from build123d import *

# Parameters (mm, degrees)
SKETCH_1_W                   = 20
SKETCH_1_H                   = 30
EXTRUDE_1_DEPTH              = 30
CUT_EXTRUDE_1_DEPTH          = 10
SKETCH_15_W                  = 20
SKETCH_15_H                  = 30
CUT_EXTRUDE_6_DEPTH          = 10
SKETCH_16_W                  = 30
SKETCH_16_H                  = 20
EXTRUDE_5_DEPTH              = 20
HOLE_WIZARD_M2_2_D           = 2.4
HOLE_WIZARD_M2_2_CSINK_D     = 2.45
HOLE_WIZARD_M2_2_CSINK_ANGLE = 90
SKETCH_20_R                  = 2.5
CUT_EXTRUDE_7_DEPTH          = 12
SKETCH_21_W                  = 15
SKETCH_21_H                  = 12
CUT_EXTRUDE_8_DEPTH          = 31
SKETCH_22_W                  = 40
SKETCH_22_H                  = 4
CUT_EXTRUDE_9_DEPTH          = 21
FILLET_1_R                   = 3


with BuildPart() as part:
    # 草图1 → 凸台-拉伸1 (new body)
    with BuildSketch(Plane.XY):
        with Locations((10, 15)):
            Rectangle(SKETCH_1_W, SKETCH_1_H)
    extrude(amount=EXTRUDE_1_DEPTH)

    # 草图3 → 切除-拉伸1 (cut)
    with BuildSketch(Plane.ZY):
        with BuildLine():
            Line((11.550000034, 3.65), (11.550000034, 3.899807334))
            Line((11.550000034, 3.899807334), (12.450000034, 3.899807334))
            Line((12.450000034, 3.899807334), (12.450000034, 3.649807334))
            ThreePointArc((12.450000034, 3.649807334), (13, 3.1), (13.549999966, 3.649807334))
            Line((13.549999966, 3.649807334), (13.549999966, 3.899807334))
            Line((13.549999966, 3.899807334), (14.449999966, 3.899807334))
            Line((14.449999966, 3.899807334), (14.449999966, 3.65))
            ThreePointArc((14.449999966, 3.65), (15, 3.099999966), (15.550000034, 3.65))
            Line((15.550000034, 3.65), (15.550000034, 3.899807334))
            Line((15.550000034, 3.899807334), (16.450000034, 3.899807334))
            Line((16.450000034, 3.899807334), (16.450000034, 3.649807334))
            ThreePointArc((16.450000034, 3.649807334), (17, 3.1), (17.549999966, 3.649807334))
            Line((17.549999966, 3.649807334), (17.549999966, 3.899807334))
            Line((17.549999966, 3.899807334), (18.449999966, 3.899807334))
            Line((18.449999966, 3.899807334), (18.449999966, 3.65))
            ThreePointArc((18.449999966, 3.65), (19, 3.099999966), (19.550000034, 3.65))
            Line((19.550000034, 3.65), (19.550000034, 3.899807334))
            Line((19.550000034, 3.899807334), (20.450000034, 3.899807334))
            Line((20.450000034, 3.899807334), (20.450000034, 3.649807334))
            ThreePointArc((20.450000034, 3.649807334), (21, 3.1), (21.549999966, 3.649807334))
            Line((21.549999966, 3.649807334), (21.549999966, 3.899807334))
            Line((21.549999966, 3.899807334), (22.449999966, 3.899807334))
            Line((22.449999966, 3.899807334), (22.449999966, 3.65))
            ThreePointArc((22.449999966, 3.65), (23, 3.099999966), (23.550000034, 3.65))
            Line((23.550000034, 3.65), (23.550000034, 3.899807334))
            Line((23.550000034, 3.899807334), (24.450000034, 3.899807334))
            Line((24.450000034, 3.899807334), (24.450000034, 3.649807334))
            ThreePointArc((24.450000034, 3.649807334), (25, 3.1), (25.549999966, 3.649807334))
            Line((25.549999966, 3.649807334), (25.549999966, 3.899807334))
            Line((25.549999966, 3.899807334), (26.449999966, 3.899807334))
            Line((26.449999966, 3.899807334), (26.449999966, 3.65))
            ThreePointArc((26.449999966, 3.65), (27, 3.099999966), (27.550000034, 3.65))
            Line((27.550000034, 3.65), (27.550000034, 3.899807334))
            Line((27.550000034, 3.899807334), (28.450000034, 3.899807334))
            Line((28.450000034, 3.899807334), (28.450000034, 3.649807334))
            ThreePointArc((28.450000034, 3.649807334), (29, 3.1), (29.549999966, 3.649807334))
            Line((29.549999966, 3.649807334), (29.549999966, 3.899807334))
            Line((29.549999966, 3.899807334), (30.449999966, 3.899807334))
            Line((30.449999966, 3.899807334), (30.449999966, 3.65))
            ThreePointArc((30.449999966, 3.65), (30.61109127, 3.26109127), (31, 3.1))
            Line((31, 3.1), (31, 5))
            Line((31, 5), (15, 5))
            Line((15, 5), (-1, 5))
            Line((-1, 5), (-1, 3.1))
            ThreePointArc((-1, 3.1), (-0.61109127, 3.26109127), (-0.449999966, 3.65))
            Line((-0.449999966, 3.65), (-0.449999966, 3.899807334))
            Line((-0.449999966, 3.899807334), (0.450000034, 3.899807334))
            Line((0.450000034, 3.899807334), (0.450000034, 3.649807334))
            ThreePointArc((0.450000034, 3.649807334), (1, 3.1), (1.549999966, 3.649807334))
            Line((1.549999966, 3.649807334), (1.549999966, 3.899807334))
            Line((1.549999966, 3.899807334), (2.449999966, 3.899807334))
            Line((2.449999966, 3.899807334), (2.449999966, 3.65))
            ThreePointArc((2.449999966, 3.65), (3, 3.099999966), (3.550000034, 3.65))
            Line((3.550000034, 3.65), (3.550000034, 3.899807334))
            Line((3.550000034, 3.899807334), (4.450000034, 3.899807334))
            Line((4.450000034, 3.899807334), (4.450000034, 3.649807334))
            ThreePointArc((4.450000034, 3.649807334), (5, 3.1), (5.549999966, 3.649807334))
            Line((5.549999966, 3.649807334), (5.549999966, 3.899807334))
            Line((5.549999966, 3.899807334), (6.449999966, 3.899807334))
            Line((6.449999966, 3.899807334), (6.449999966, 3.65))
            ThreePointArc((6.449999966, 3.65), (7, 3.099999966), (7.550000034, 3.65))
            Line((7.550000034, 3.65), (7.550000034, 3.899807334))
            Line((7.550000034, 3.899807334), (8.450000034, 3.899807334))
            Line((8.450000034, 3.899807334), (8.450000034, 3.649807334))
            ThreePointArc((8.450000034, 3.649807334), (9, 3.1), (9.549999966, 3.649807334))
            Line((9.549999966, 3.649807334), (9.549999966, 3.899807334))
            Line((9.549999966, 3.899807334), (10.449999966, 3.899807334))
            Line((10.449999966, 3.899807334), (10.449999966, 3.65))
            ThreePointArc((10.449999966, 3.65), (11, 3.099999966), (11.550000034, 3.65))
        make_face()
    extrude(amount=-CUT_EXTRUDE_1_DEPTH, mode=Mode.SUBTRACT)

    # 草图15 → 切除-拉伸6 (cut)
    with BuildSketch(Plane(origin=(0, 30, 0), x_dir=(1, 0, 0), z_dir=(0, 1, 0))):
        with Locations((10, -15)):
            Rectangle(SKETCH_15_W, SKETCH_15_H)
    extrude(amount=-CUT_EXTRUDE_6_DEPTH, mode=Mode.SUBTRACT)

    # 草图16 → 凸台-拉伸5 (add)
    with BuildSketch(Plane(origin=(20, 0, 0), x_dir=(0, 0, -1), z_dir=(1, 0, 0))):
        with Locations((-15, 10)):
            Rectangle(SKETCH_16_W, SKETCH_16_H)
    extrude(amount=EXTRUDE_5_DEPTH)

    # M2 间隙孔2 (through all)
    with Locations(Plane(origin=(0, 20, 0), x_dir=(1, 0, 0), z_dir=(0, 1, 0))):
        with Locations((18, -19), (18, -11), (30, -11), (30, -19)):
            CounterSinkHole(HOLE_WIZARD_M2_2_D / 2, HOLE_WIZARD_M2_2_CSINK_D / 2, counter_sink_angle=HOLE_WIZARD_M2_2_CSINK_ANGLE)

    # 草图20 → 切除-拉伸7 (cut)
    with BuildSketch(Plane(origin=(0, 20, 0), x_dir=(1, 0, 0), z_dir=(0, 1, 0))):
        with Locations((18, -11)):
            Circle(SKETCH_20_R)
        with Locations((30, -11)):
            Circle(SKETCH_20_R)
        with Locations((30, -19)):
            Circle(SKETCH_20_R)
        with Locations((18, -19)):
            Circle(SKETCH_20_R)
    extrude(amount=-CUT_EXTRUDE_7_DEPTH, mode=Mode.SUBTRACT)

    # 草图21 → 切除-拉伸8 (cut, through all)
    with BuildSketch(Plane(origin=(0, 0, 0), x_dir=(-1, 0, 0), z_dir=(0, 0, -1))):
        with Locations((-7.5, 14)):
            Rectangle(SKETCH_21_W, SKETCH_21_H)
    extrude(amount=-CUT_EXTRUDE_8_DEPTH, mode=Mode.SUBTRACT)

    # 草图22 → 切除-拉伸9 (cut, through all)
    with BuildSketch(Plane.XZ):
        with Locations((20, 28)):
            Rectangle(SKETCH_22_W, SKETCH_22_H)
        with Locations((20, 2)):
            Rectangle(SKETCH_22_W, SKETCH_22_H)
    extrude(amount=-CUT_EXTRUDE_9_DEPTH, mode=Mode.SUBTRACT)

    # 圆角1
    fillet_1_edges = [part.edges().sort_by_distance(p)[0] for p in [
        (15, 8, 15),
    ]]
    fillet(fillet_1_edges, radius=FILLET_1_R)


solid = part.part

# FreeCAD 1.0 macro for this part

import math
import FreeCAD as App
import Part
import Sketcher


def edges_at(feature, points):
    """Names of the edges that pass closest to the given points."""
    edges = feature.Shape.Edges
    near = lambda p: min(range(len(edges)), key=lambda i: edges[i].distToShape(Part.Vertex(*p))[0])
    return sorted({f"Edge{near(p) + 1}" for p in points})

doc = App.newDocument("Part")
body = doc.addObject("PartDesign::Body", "Body")

# Sketch on XY plane
sketch1 = body.newObject("Sketcher::SketchObject", "Sketch")
sketch1.AttachmentSupport = (doc.getObject("XY_Plane"), [""])
sketch1.MapMode = "FlatFace"
sketch1.addGeometry(Part.LineSegment(App.Vector(0, 30, 0), App.Vector(0, 0, 0)), False)
sketch1.addGeometry(Part.LineSegment(App.Vector(0, 0, 0), App.Vector(20, 0, 0)), False)
sketch1.addGeometry(Part.LineSegment(App.Vector(20, 0, 0), App.Vector(20, 30, 0)), False)
sketch1.addGeometry(Part.LineSegment(App.Vector(20, 30, 0), App.Vector(0, 30, 0)), False)
sketch1.addConstraint(Sketcher.Constraint("Coincident", 0, 2, 1, 1))
sketch1.addConstraint(Sketcher.Constraint("Coincident", 1, 2, 2, 1))
sketch1.addConstraint(Sketcher.Constraint("Coincident", 2, 2, 3, 1))
sketch1.addConstraint(Sketcher.Constraint("Coincident", 3, 2, 0, 1))
sketch1.addConstraint(Sketcher.Constraint("Vertical", 0))
sketch1.addConstraint(Sketcher.Constraint("Horizontal", 1))
sketch1.addConstraint(Sketcher.Constraint("Vertical", 2))
sketch1.addConstraint(Sketcher.Constraint("Horizontal", 3))
sketch1.addConstraint(Sketcher.Constraint("Coincident", 0, 2, -1, 1))
sketch1.addConstraint(Sketcher.Constraint("DistanceX", 1, 1, 1, 2, 20.0))
sketch1.addConstraint(Sketcher.Constraint("DistanceY", 0, 2, 0, 1, 30.0))
pad1 = body.newObject("PartDesign::Pad", "Pad")
pad1.Profile = sketch1
pad1.Length = 30

# Sketch on YZ plane
sketch2 = body.newObject("Sketcher::SketchObject", "Sketch001")
sketch2.AttachmentSupport = (doc.getObject("YZ_Plane"), [""])
sketch2.MapMode = "FlatFace"
sketch2.addGeometry(Part.LineSegment(App.Vector(3.65, 11.55, 0), App.Vector(3.9, 11.55, 0)), False)
sketch2.addGeometry(Part.LineSegment(App.Vector(3.9, 11.55, 0), App.Vector(3.9, 12.45, 0)), False)
sketch2.addGeometry(Part.LineSegment(App.Vector(3.9, 12.45, 0), App.Vector(3.65, 12.45, 0)), False)
sketch2.addGeometry(Part.ArcOfCircle(Part.Circle(App.Vector(3.65, 13, 0), App.Vector(0, 0, 1), 0.55), math.radians(90), math.radians(270)), False)
sketch2.addGeometry(Part.LineSegment(App.Vector(3.65, 13.55, 0), App.Vector(3.9, 13.55, 0)), False)
sketch2.addGeometry(Part.LineSegment(App.Vector(3.9, 13.55, 0), App.Vector(3.9, 14.45, 0)), False)
sketch2.addGeometry(Part.LineSegment(App.Vector(3.9, 14.45, 0), App.Vector(3.65, 14.45, 0)), False)
sketch2.addGeometry(Part.ArcOfCircle(Part.Circle(App.Vector(3.65, 15, 0), App.Vector(0, 0, 1), 0.55), math.radians(90), math.radians(270)), False)
sketch2.addGeometry(Part.LineSegment(App.Vector(3.65, 15.55, 0), App.Vector(3.9, 15.55, 0)), False)
sketch2.addGeometry(Part.LineSegment(App.Vector(3.9, 15.55, 0), App.Vector(3.9, 16.45, 0)), False)
sketch2.addGeometry(Part.LineSegment(App.Vector(3.9, 16.45, 0), App.Vector(3.65, 16.45, 0)), False)
sketch2.addGeometry(Part.ArcOfCircle(Part.Circle(App.Vector(3.65, 17, 0), App.Vector(0, 0, 1), 0.55), math.radians(90), math.radians(270)), False)
sketch2.addGeometry(Part.LineSegment(App.Vector(3.65, 17.55, 0), App.Vector(3.9, 17.55, 0)), False)
sketch2.addGeometry(Part.LineSegment(App.Vector(3.9, 17.55, 0), App.Vector(3.9, 18.45, 0)), False)
sketch2.addGeometry(Part.LineSegment(App.Vector(3.9, 18.45, 0), App.Vector(3.65, 18.45, 0)), False)
sketch2.addGeometry(Part.ArcOfCircle(Part.Circle(App.Vector(3.65, 19, 0), App.Vector(0, 0, 1), 0.55), math.radians(90), math.radians(270)), False)
sketch2.addGeometry(Part.LineSegment(App.Vector(3.65, 19.55, 0), App.Vector(3.9, 19.55, 0)), False)
sketch2.addGeometry(Part.LineSegment(App.Vector(3.9, 19.55, 0), App.Vector(3.9, 20.45, 0)), False)
sketch2.addGeometry(Part.LineSegment(App.Vector(3.9, 20.45, 0), App.Vector(3.65, 20.45, 0)), False)
sketch2.addGeometry(Part.ArcOfCircle(Part.Circle(App.Vector(3.65, 21, 0), App.Vector(0, 0, 1), 0.55), math.radians(90), math.radians(270)), False)
sketch2.addGeometry(Part.LineSegment(App.Vector(3.65, 21.55, 0), App.Vector(3.9, 21.55, 0)), False)
sketch2.addGeometry(Part.LineSegment(App.Vector(3.9, 21.55, 0), App.Vector(3.9, 22.45, 0)), False)
sketch2.addGeometry(Part.LineSegment(App.Vector(3.9, 22.45, 0), App.Vector(3.65, 22.45, 0)), False)
sketch2.addGeometry(Part.ArcOfCircle(Part.Circle(App.Vector(3.65, 23, 0), App.Vector(0, 0, 1), 0.55), math.radians(90), math.radians(270)), False)
sketch2.addGeometry(Part.LineSegment(App.Vector(3.65, 23.55, 0), App.Vector(3.9, 23.55, 0)), False)
sketch2.addGeometry(Part.LineSegment(App.Vector(3.9, 23.55, 0), App.Vector(3.9, 24.45, 0)), False)
sketch2.addGeometry(Part.LineSegment(App.Vector(3.9, 24.45, 0), App.Vector(3.65, 24.45, 0)), False)
sketch2.addGeometry(Part.ArcOfCircle(Part.Circle(App.Vector(3.65, 25, 0), App.Vector(0, 0, 1), 0.55), math.radians(90), math.radians(270)), False)
sketch2.addGeometry(Part.LineSegment(App.Vector(3.65, 25.55, 0), App.Vector(3.9, 25.55, 0)), False)
sketch2.addGeometry(Part.LineSegment(App.Vector(3.9, 25.55, 0), App.Vector(3.9, 26.45, 0)), False)
sketch2.addGeometry(Part.LineSegment(App.Vector(3.9, 26.45, 0), App.Vector(3.65, 26.45, 0)), False)
sketch2.addGeometry(Part.ArcOfCircle(Part.Circle(App.Vector(3.65, 27, 0), App.Vector(0, 0, 1), 0.55), math.radians(90), math.radians(270)), False)
sketch2.addGeometry(Part.LineSegment(App.Vector(3.65, 27.55, 0), App.Vector(3.9, 27.55, 0)), False)
sketch2.addGeometry(Part.LineSegment(App.Vector(3.9, 27.55, 0), App.Vector(3.9, 28.45, 0)), False)
sketch2.addGeometry(Part.LineSegment(App.Vector(3.9, 28.45, 0), App.Vector(3.65, 28.45, 0)), False)
sketch2.addGeometry(Part.ArcOfCircle(Part.Circle(App.Vector(3.65, 29, 0), App.Vector(0, 0, 1), 0.55), math.radians(90), math.radians(270)), False)
sketch2.addGeometry(Part.LineSegment(App.Vector(3.65, 29.55, 0), App.Vector(3.9, 29.55, 0)), False)
sketch2.addGeometry(Part.LineSegment(App.Vector(3.9, 29.55, 0), App.Vector(3.9, 30.45, 0)), False)
sketch2.addGeometry(Part.LineSegment(App.Vector(3.9, 30.45, 0), App.Vector(3.65, 30.45, 0)), False)
sketch2.addGeometry(Part.ArcOfCircle(Part.Circle(App.Vector(3.65, 31, 0), App.Vector(0, 0, 1), 0.55), math.radians(-180), math.radians(-90)), False)
sketch2.addGeometry(Part.LineSegment(App.Vector(3.1, 31, 0), App.Vector(5, 31, 0)), False)
sketch2.addGeometry(Part.LineSegment(App.Vector(5, 31, 0), App.Vector(5, -1, 0)), False)
sketch2.addGeometry(Part.LineSegment(App.Vector(5, -1, 0), App.Vector(3.1, -1, 0)), False)
sketch2.addGeometry(Part.ArcOfCircle(Part.Circle(App.Vector(3.65, -1, 0), App.Vector(0, 0, 1), 0.55), math.radians(90), math.radians(180)), False)
sketch2.addGeometry(Part.LineSegment(App.Vector(3.65, -0.45, 0), App.Vector(3.9, -0.45, 0)), False)
sketch2.addGeometry(Part.LineSegment(App.Vector(3.9, -0.45, 0), App.Vector(3.9, 0.45, 0)), False)
sketch2.addGeometry(Part.LineSegment(App.Vector(3.9, 0.45, 0), App.Vector(3.65, 0.45, 0)), False)
sketch2.addGeometry(Part.ArcOfCircle(Part.Circle(App.Vector(3.65, 1, 0), App.Vector(0, 0, 1), 0.55), math.radians(90), math.radians(270)), False)
sketch2.addGeometry(Part.LineSegment(App.Vector(3.65, 1.55, 0), App.Vector(3.9, 1.55, 0)), False)
sketch2.addGeometry(Part.LineSegment(App.Vector(3.9, 1.55, 0), App.Vector(3.9, 2.45, 0)), False)
sketch2.addGeometry(Part.LineSegment(App.Vector(3.9, 2.45, 0), App.Vector(3.65, 2.45, 0)), False)
sketch2.addGeometry(Part.ArcOfCircle(Part.Circle(App.Vector(3.65, 3, 0), App.Vector(0, 0, 1), 0.55), math.radians(90), math.radians(270)), False)
sketch2.addGeometry(Part.LineSegment(App.Vector(3.65, 3.55, 0), App.Vector(3.9, 3.55, 0)), False)
sketch2.addGeometry(Part.LineSegment(App.Vector(3.9, 3.55, 0), App.Vector(3.9, 4.45, 0)), False)
sketch2.addGeometry(Part.LineSegment(App.Vector(3.9, 4.45, 0), App.Vector(3.65, 4.45, 0)), False)
sketch2.addGeometry(Part.ArcOfCircle(Part.Circle(App.Vector(3.65, 5, 0), App.Vector(0, 0, 1), 0.55), math.radians(90), math.radians(270)), False)
sketch2.addGeometry(Part.LineSegment(App.Vector(3.65, 5.55, 0), App.Vector(3.9, 5.55, 0)), False)
sketch2.addGeometry(Part.LineSegment(App.Vector(3.9, 5.55, 0), App.Vector(3.9, 6.45, 0)), False)
sketch2.addGeometry(Part.LineSegment(App.Vector(3.9, 6.45, 0), App.Vector(3.65, 6.45, 0)), False)
sketch2.addGeometry(Part.ArcOfCircle(Part.Circle(App.Vector(3.65, 7, 0), App.Vector(0, 0, 1), 0.55), math.radians(90), math.radians(270)), False)
sketch2.addGeometry(Part.LineSegment(App.Vector(3.65, 7.55, 0), App.Vector(3.9, 7.55, 0)), False)
sketch2.addGeometry(Part.LineSegment(App.Vector(3.9, 7.55, 0), App.Vector(3.9, 8.45, 0)), False)
sketch2.addGeometry(Part.LineSegment(App.Vector(3.9, 8.45, 0), App.Vector(3.65, 8.45, 0)), False)
sketch2.addGeometry(Part.ArcOfCircle(Part.Circle(App.Vector(3.65, 9, 0), App.Vector(0, 0, 1), 0.55), math.radians(90), math.radians(270)), False)
sketch2.addGeometry(Part.LineSegment(App.Vector(3.65, 9.55, 0), App.Vector(3.9, 9.55, 0)), False)
sketch2.addGeometry(Part.LineSegment(App.Vector(3.9, 9.55, 0), App.Vector(3.9, 10.45, 0)), False)
sketch2.addGeometry(Part.LineSegment(App.Vector(3.9, 10.45, 0), App.Vector(3.65, 10.45, 0)), False)
sketch2.addGeometry(Part.ArcOfCircle(Part.Circle(App.Vector(3.65, 11, 0), App.Vector(0, 0, 1), 0.55), math.radians(90), math.radians(270)), False)
sketch2.addConstraint(Sketcher.Constraint("Coincident", 0, 2, 1, 1))
sketch2.addConstraint(Sketcher.Constraint("Coincident", 1, 2, 2, 1))
sketch2.addConstraint(Sketcher.Constraint("Coincident", 2, 2, 3, 2))
sketch2.addConstraint(Sketcher.Constraint("Coincident", 3, 1, 4, 1))
sketch2.addConstraint(Sketcher.Constraint("Coincident", 4, 2, 5, 1))
sketch2.addConstraint(Sketcher.Constraint("Coincident", 5, 2, 6, 1))
sketch2.addConstraint(Sketcher.Constraint("Tangent", 6, 2, 7, 2))
sketch2.addConstraint(Sketcher.Constraint("Tangent", 7, 1, 8, 1))
sketch2.addConstraint(Sketcher.Constraint("Coincident", 8, 2, 9, 1))
sketch2.addConstraint(Sketcher.Constraint("Coincident", 9, 2, 10, 1))
sketch2.addConstraint(Sketcher.Constraint("Coincident", 10, 2, 11, 2))
sketch2.addConstraint(Sketcher.Constraint("Coincident", 11, 1, 12, 1))
sketch2.addConstraint(Sketcher.Constraint("Coincident", 12, 2, 13, 1))
sketch2.addConstraint(Sketcher.Constraint("Coincident", 13, 2, 14, 1))
sketch2.addConstraint(Sketcher.Constraint("Tangent", 14, 2, 15, 2))
sketch2.addConstraint(Sketcher.Constraint("Tangent", 15, 1, 16, 1))
sketch2.addConstraint(Sketcher.Constraint("Coincident", 16, 2, 17, 1))
sketch2.addConstraint(Sketcher.Constraint("Coincident", 17, 2, 18, 1))
sketch2.addConstraint(Sketcher.Constraint("Coincident", 18, 2, 19, 2))
sketch2.addConstraint(Sketcher.Constraint("Coincident", 19, 1, 20, 1))
sketch2.addConstraint(Sketcher.Constraint("Coincident", 20, 2, 21, 1))
sketch2.addConstraint(Sketcher.Constraint("Coincident", 21, 2, 22, 1))
sketch2.addConstraint(Sketcher.Constraint("Tangent", 22, 2, 23, 2))
sketch2.addConstraint(Sketcher.Constraint("Tangent", 23, 1, 24, 1))
sketch2.addConstraint(Sketcher.Constraint("Coincident", 24, 2, 25, 1))
sketch2.addConstraint(Sketcher.Constraint("Coincident", 25, 2, 26, 1))
sketch2.addConstraint(Sketcher.Constraint("Coincident", 26, 2, 27, 2))
sketch2.addConstraint(Sketcher.Constraint("Coincident", 27, 1, 28, 1))
sketch2.addConstraint(Sketcher.Constraint("Coincident", 28, 2, 29, 1))
sketch2.addConstraint(Sketcher.Constraint("Coincident", 29, 2, 30, 1))
sketch2.addConstraint(Sketcher.Constraint("Tangent", 30, 2, 31, 2))
sketch2.addConstraint(Sketcher.Constraint("Tangent", 31, 1, 32, 1))
sketch2.addConstraint(Sketcher.Constraint("Coincident", 32, 2, 33, 1))
sketch2.addConstraint(Sketcher.Constraint("Coincident", 33, 2, 34, 1))
sketch2.addConstraint(Sketcher.Constraint("Coincident", 34, 2, 35, 2))
sketch2.addConstraint(Sketcher.Constraint("Coincident", 35, 1, 36, 1))
sketch2.addConstraint(Sketcher.Constraint("Coincident", 36, 2, 37, 1))
sketch2.addConstraint(Sketcher.Constraint("Coincident", 37, 2, 38, 1))
sketch2.addConstraint(Sketcher.Constraint("Tangent", 38, 2, 39, 2))
sketch2.addConstraint(Sketcher.Constraint("Coincident", 39, 1, 40, 1))
sketch2.addConstraint(Sketcher.Constraint("Coincident", 40, 2, 41, 1))
sketch2.addConstraint(Sketcher.Constraint("Coincident", 41, 2, 42, 1))
sketch2.addConstraint(Sketcher.Constraint("Coincident", 42, 2, 43, 2))
sketch2.addConstraint(Sketcher.Constraint("Tangent", 43, 1, 44, 1))
sketch2.addConstraint(Sketcher.Constraint("Coincident", 44, 2, 45, 1))
sketch2.addConstraint(Sketcher.Constraint("Coincident", 45, 2, 46, 1))
sketch2.addConstraint(Sketcher.Constraint("Coincident", 46, 2, 47, 2))
sketch2.addConstraint(Sketcher.Constraint("Coincident", 47, 1, 48, 1))
sketch2.addConstraint(Sketcher.Constraint("Coincident", 48, 2, 49, 1))
sketch2.addConstraint(Sketcher.Constraint("Coincident", 49, 2, 50, 1))
sketch2.addConstraint(Sketcher.Constraint("Tangent", 50, 2, 51, 2))
sketch2.addConstraint(Sketcher.Constraint("Tangent", 51, 1, 52, 1))
sketch2.addConstraint(Sketcher.Constraint("Coincident", 52, 2, 53, 1))
sketch2.addConstraint(Sketcher.Constraint("Coincident", 53, 2, 54, 1))
sketch2.addConstraint(Sketcher.Constraint("Coincident", 54, 2, 55, 2))
sketch2.addConstraint(Sketcher.Constraint("Coincident", 55, 1, 56, 1))
sketch2.addConstraint(Sketcher.Constraint("Coincident", 56, 2, 57, 1))
sketch2.addConstraint(Sketcher.Constraint("Coincident", 57, 2, 58, 1))
sketch2.addConstraint(Sketcher.Constraint("Tangent", 58, 2, 59, 2))
sketch2.addConstraint(Sketcher.Constraint("Tangent", 59, 1, 60, 1))
sketch2.addConstraint(Sketcher.Constraint("Coincident", 60, 2, 61, 1))
sketch2.addConstraint(Sketcher.Constraint("Coincident", 61, 2, 62, 1))
sketch2.addConstraint(Sketcher.Constraint("Coincident", 62, 2, 63, 2))
sketch2.addConstraint(Sketcher.Constraint("Coincident", 63, 1, 64, 1))
sketch2.addConstraint(Sketcher.Constraint("Coincident", 64, 2, 65, 1))
sketch2.addConstraint(Sketcher.Constraint("Coincident", 65, 2, 66, 1))
sketch2.addConstraint(Sketcher.Constraint("Tangent", 66, 2, 67, 2))
sketch2.addConstraint(Sketcher.Constraint("Tangent", 67, 1, 0, 1))
sketch2.addConstraint(Sketcher.Constraint("Horizontal", 0))
sketch2.addConstraint(Sketcher.Constraint("Vertical", 1))
sketch2.addConstraint(Sketcher.Constraint("Horizontal", 2))
sketch2.addConstraint(Sketcher.Constraint("Horizontal", 4))
sketch2.addConstraint(Sketcher.Constraint("Vertical", 5))
sketch2.addConstraint(Sketcher.Constraint("Horizontal", 6))
sketch2.addConstraint(Sketcher.Constraint("Horizontal", 8))
sketch2.addConstraint(Sketcher.Constraint("Vertical", 9))
sketch2.addConstraint(Sketcher.Constraint("Horizontal", 10))
sketch2.addConstraint(Sketcher.Constraint("Horizontal", 12))
sketch2.addConstraint(Sketcher.Constraint("Vertical", 13))
sketch2.addConstraint(Sketcher.Constraint("Horizontal", 14))
sketch2.addConstraint(Sketcher.Constraint("Horizontal", 16))
sketch2.addConstraint(Sketcher.Constraint("Vertical", 17))
sketch2.addConstraint(Sketcher.Constraint("Horizontal", 18))
sketch2.addConstraint(Sketcher.Constraint("Horizontal", 20))
sketch2.addConstraint(Sketcher.Constraint("Vertical", 21))
sketch2.addConstraint(Sketcher.Constraint("Horizontal", 22))
sketch2.addConstraint(Sketcher.Constraint("Horizontal", 24))
sketch2.addConstraint(Sketcher.Constraint("Vertical", 25))
sketch2.addConstraint(Sketcher.Constraint("Horizontal", 26))
sketch2.addConstraint(Sketcher.Constraint("Horizontal", 28))
sketch2.addConstraint(Sketcher.Constraint("Vertical", 29))
sketch2.addConstraint(Sketcher.Constraint("Horizontal", 30))
sketch2.addConstraint(Sketcher.Constraint("Horizontal", 32))
sketch2.addConstraint(Sketcher.Constraint("Vertical", 33))
sketch2.addConstraint(Sketcher.Constraint("Horizontal", 34))
sketch2.addConstraint(Sketcher.Constraint("Horizontal", 36))
sketch2.addConstraint(Sketcher.Constraint("Vertical", 37))
sketch2.addConstraint(Sketcher.Constraint("Horizontal", 38))
sketch2.addConstraint(Sketcher.Constraint("Horizontal", 40))
sketch2.addConstraint(Sketcher.Constraint("Vertical", 41))
sketch2.addConstraint(Sketcher.Constraint("Horizontal", 42))
sketch2.addConstraint(Sketcher.Constraint("Horizontal", 44))
sketch2.addConstraint(Sketcher.Constraint("Vertical", 45))
sketch2.addConstraint(Sketcher.Constraint("Horizontal", 46))
sketch2.addConstraint(Sketcher.Constraint("Horizontal", 48))
sketch2.addConstraint(Sketcher.Constraint("Vertical", 49))
sketch2.addConstraint(Sketcher.Constraint("Horizontal", 50))
sketch2.addConstraint(Sketcher.Constraint("Horizontal", 52))
sketch2.addConstraint(Sketcher.Constraint("Vertical", 53))
sketch2.addConstraint(Sketcher.Constraint("Horizontal", 54))
sketch2.addConstraint(Sketcher.Constraint("Horizontal", 56))
sketch2.addConstraint(Sketcher.Constraint("Vertical", 57))
sketch2.addConstraint(Sketcher.Constraint("Horizontal", 58))
sketch2.addConstraint(Sketcher.Constraint("Horizontal", 60))
sketch2.addConstraint(Sketcher.Constraint("Vertical", 61))
sketch2.addConstraint(Sketcher.Constraint("Horizontal", 62))
sketch2.addConstraint(Sketcher.Constraint("Horizontal", 64))
sketch2.addConstraint(Sketcher.Constraint("Vertical", 65))
sketch2.addConstraint(Sketcher.Constraint("Horizontal", 66))
sketch2.addConstraint(Sketcher.Constraint("Equal", 3, 7))
sketch2.addConstraint(Sketcher.Constraint("Equal", 7, 11))
sketch2.addConstraint(Sketcher.Constraint("Equal", 11, 15))
sketch2.addConstraint(Sketcher.Constraint("Equal", 15, 19))
sketch2.addConstraint(Sketcher.Constraint("Equal", 19, 23))
sketch2.addConstraint(Sketcher.Constraint("Equal", 23, 27))
sketch2.addConstraint(Sketcher.Constraint("Equal", 27, 31))
sketch2.addConstraint(Sketcher.Constraint("Equal", 31, 35))
sketch2.addConstraint(Sketcher.Constraint("Equal", 35, 39))
sketch2.addConstraint(Sketcher.Constraint("Equal", 39, 43))
sketch2.addConstraint(Sketcher.Constraint("Equal", 43, 47))
sketch2.addConstraint(Sketcher.Constraint("Equal", 47, 51))
sketch2.addConstraint(Sketcher.Constraint("Equal", 51, 55))
sketch2.addConstraint(Sketcher.Constraint("Equal", 55, 59))
sketch2.addConstraint(Sketcher.Constraint("Equal", 59, 63))
sketch2.addConstraint(Sketcher.Constraint("Equal", 63, 67))
sketch2.addConstraint(Sketcher.Constraint("Symmetric", 43, 3, 47, 3, -1))
sketch2.addConstraint(Sketcher.Constraint("Horizontal", 43, 3, 41, 2))
sketch2.addConstraint(Sketcher.Constraint("Vertical", 3, 3, 7, 3))
sketch2.addConstraint(Sketcher.Constraint("Vertical", 7, 3, 11, 3))
sketch2.addConstraint(Sketcher.Constraint("Vertical", 11, 3, 15, 3))
sketch2.addConstraint(Sketcher.Constraint("Vertical", 15, 3, 19, 3))
sketch2.addConstraint(Sketcher.Constraint("Vertical", 19, 3, 23, 3))
sketch2.addConstraint(Sketcher.Constraint("Vertical", 23, 3, 27, 3))
sketch2.addConstraint(Sketcher.Constraint("Vertical", 27, 3, 31, 3))
sketch2.addConstraint(Sketcher.Constraint("Vertical", 31, 3, 35, 3))
sketch2.addConstraint(Sketcher.Constraint("Vertical", 35, 3, 39, 3))
sketch2.addConstraint(Sketcher.Constraint("Vertical", 39, 3, 43, 3))
sketch2.addConstraint(Sketcher.Constraint("Vertical", 47, 3, 51, 3))
sketch2.addConstraint(Sketcher.Constraint("Vertical", 51, 3, 55, 3))
sketch2.addConstraint(Sketcher.Constraint("Vertical", 55, 3, 59, 3))
sketch2.addConstraint(Sketcher.Constraint("Vertical", 59, 3, 63, 3))
sketch2.addConstraint(Sketcher.Constraint("Vertical", 63, 3, 67, 3))
sketch2.addConstraint(Sketcher.Constraint("Vertical", 2, 2, 3, 1))
sketch2.addConstraint(Sketcher.Constraint("Vertical", 1, 2, 4, 2))
sketch2.addConstraint(Sketcher.Constraint("Vertical", 5, 2, 8, 2))
sketch2.addConstraint(Sketcher.Constraint("Vertical", 3, 1, 10, 2))
sketch2.addConstraint(Sketcher.Constraint("Vertical", 10, 2, 11, 1))
sketch2.addConstraint(Sketcher.Constraint("Vertical", 9, 2, 12, 2))
sketch2.addConstraint(Sketcher.Constraint("Vertical", 13, 2, 16, 2))
sketch2.addConstraint(Sketcher.Constraint("Vertical", 11, 1, 18, 2))
sketch2.addConstraint(Sketcher.Constraint("Vertical", 18, 2, 19, 1))
sketch2.addConstraint(Sketcher.Constraint("Vertical", 17, 2, 20, 2))
sketch2.addConstraint(Sketcher.Constraint("Vertical", 21, 2, 24, 2))
sketch2.addConstraint(Sketcher.Constraint("Vertical", 19, 1, 26, 2))
sketch2.addConstraint(Sketcher.Constraint("Vertical", 26, 2, 27, 1))
sketch2.addConstraint(Sketcher.Constraint("Vertical", 25, 2, 28, 2))
sketch2.addConstraint(Sketcher.Constraint("Vertical", 29, 2, 32, 2))
sketch2.addConstraint(Sketcher.Constraint("Vertical", 27, 1, 34, 2))
sketch2.addConstraint(Sketcher.Constraint("Vertical", 34, 2, 35, 1))
sketch2.addConstraint(Sketcher.Constraint("Vertical", 33, 2, 36, 2))
sketch2.addConstraint(Sketcher.Constraint("Vertical", 37, 2, 44, 2))
sketch2.addConstraint(Sketcher.Constraint("Vertical", 35, 1, 46, 2))
sketch2.addConstraint(Sketcher.Constraint("Vertical", 46, 2, 47, 1))
sketch2.addConstraint(Sketcher.Constraint("Vertical", 45, 2, 48, 2))
sketch2.addConstraint(Sketcher.Constraint("Vertical", 49, 2, 52, 2))
sketch2.addConstraint(Sketcher.Constraint("Vertical", 47, 1, 54, 2))
sketch2.addConstraint(Sketcher.Constraint("Vertical", 54, 2, 55, 1))
sketch2.addConstraint(Sketcher.Constraint("Vertical", 53, 2, 56, 2))
sketch2.addConstraint(Sketcher.Constraint("Vertical", 57, 2, 60, 2))
sketch2.addConstraint(Sketcher.Constraint("Vertical", 55, 1, 62, 2))
sketch2.addConstraint(Sketcher.Constraint("Vertical", 62, 2, 63, 1))
sketch2.addConstraint(Sketcher.Constraint("Vertical", 61, 2, 64, 2))
sketch2.addConstraint(Sketcher.Constraint("Equal", 1, 5))
sketch2.addConstraint(Sketcher.Constraint("Equal", 5, 9))
sketch2.addConstraint(Sketcher.Constraint("Equal", 9, 13))
sketch2.addConstraint(Sketcher.Constraint("Equal", 13, 17))
sketch2.addConstraint(Sketcher.Constraint("Equal", 17, 21))
sketch2.addConstraint(Sketcher.Constraint("Equal", 21, 25))
sketch2.addConstraint(Sketcher.Constraint("Equal", 25, 29))
sketch2.addConstraint(Sketcher.Constraint("Equal", 29, 33))
sketch2.addConstraint(Sketcher.Constraint("Equal", 33, 37))
sketch2.addConstraint(Sketcher.Constraint("Equal", 37, 45))
sketch2.addConstraint(Sketcher.Constraint("Equal", 45, 49))
sketch2.addConstraint(Sketcher.Constraint("Equal", 49, 53))
sketch2.addConstraint(Sketcher.Constraint("Equal", 53, 57))
sketch2.addConstraint(Sketcher.Constraint("Equal", 57, 61))
sketch2.addConstraint(Sketcher.Constraint("Equal", 61, 65))
sketch2.addConstraint(Sketcher.Constraint("DistanceY", 41, 2, 41, 1, 32.0))
sketch2.addConstraint(Sketcher.Constraint("Radius", 3, 0.55))
sketch2.addConstraint(Sketcher.Constraint("DistanceX", 40, 1, 40, 2, 1.9))
sketch2.addConstraint(Sketcher.Constraint("DistanceY", 1, 1, 1, 2, 0.9))
sketch2.addConstraint(Sketcher.Constraint("DistanceX", -1, 1, 40, 2, 5.0))
sketch2.addConstraint(Sketcher.Constraint("DistanceX", 2, 2, 2, 1, 0.25))
sketch2.addConstraint(Sketcher.Constraint("DistanceX", 0, 1, 0, 2, 0.249807))
pocket1 = body.newObject("PartDesign::Pocket", "Pocket")
pocket1.Profile = sketch2
pocket1.Length = 10
pocket1.Reversed = True

# Sketch on XZ plane
sketch3 = body.newObject("Sketcher::SketchObject", "Sketch002")
sketch3.AttachmentSupport = (doc.getObject("XZ_Plane"), [""])
sketch3.MapMode = "FlatFace"
sketch3.AttachmentOffset = App.Placement(App.Vector(0, 0, -30), App.Rotation())
sketch3.addGeometry(Part.LineSegment(App.Vector(0, 0, 0), App.Vector(0, 30, 0)), False)
sketch3.addGeometry(Part.LineSegment(App.Vector(0, 30, 0), App.Vector(20, 30, 0)), False)
sketch3.addGeometry(Part.LineSegment(App.Vector(20, 30, 0), App.Vector(20, 0, 0)), False)
sketch3.addGeometry(Part.LineSegment(App.Vector(20, 0, 0), App.Vector(0, 0, 0)), False)
sketch3.addConstraint(Sketcher.Constraint("Coincident", 0, 2, 1, 1))
sketch3.addConstraint(Sketcher.Constraint("Coincident", 1, 2, 2, 1))
sketch3.addConstraint(Sketcher.Constraint("Coincident", 2, 2, 3, 1))
sketch3.addConstraint(Sketcher.Constraint("Coincident", 3, 2, 0, 1))
sketch3.addConstraint(Sketcher.Constraint("Vertical", 0))
sketch3.addConstraint(Sketcher.Constraint("Horizontal", 1))
sketch3.addConstraint(Sketcher.Constraint("Vertical", 2))
sketch3.addConstraint(Sketcher.Constraint("Horizontal", 3))
sketch3.addConstraint(Sketcher.Constraint("Coincident", 3, 2, -1, 1))
sketch3.addConstraint(Sketcher.Constraint("DistanceX", 1, 1, 1, 2, 20.0))
sketch3.addConstraint(Sketcher.Constraint("DistanceY", 0, 1, 0, 2, 30.0))
pocket2 = body.newObject("PartDesign::Pocket", "Pocket001")
pocket2.Profile = sketch3
pocket2.Length = 10
pocket2.Reversed = True

# Sketch on YZ plane
sketch4 = body.newObject("Sketcher::SketchObject", "Sketch003")
sketch4.AttachmentSupport = (doc.getObject("YZ_Plane"), [""])
sketch4.MapMode = "FlatFace"
sketch4.AttachmentOffset = App.Placement(App.Vector(0, 0, 20), App.Rotation())
sketch4.addGeometry(Part.LineSegment(App.Vector(20, 30, 0), App.Vector(0, 30, 0)), False)
sketch4.addGeometry(Part.LineSegment(App.Vector(0, 30, 0), App.Vector(0, 0, 0)), False)
sketch4.addGeometry(Part.LineSegment(App.Vector(0, 0, 0), App.Vector(20, 0, 0)), False)
sketch4.addGeometry(Part.LineSegment(App.Vector(20, 0, 0), App.Vector(20, 30, 0)), False)
sketch4.addConstraint(Sketcher.Constraint("Coincident", 0, 2, 1, 1))
sketch4.addConstraint(Sketcher.Constraint("Coincident", 1, 2, 2, 1))
sketch4.addConstraint(Sketcher.Constraint("Coincident", 2, 2, 3, 1))
sketch4.addConstraint(Sketcher.Constraint("Coincident", 3, 2, 0, 1))
sketch4.addConstraint(Sketcher.Constraint("Horizontal", 0))
sketch4.addConstraint(Sketcher.Constraint("Vertical", 1))
sketch4.addConstraint(Sketcher.Constraint("Horizontal", 2))
sketch4.addConstraint(Sketcher.Constraint("Vertical", 3))
sketch4.addConstraint(Sketcher.Constraint("Coincident", 1, 2, -1, 1))
sketch4.addConstraint(Sketcher.Constraint("DistanceX", 0, 2, 0, 1, 20.0))
sketch4.addConstraint(Sketcher.Constraint("DistanceY", 1, 2, 1, 1, 30.0))
pad2 = body.newObject("PartDesign::Pad", "Pad001")
pad2.Profile = sketch4
pad2.Length = 20

# Sketch on XZ plane
sketch5 = body.newObject("Sketcher::SketchObject", "Sketch004")
sketch5.AttachmentSupport = (doc.getObject("XZ_Plane"), [""])
sketch5.MapMode = "FlatFace"
sketch5.AttachmentOffset = App.Placement(App.Vector(0, 0, -20), App.Rotation())
sketch5.addGeometry(Part.Circle(App.Vector(18, 19, 0), App.Vector(0, 0, 1), 1.2), False)
sketch5.addGeometry(Part.Circle(App.Vector(18, 11, 0), App.Vector(0, 0, 1), 1.2), False)
sketch5.addGeometry(Part.Circle(App.Vector(30, 11, 0), App.Vector(0, 0, 1), 1.2), False)
sketch5.addGeometry(Part.Circle(App.Vector(30, 19, 0), App.Vector(0, 0, 1), 1.2), False)
sketch5.addConstraint(Sketcher.Constraint("Equal", 0, 1))
sketch5.addConstraint(Sketcher.Constraint("Equal", 1, 2))
sketch5.addConstraint(Sketcher.Constraint("Equal", 2, 3))
sketch5.addConstraint(Sketcher.Constraint("Horizontal", 1, 3, 2, 3))
sketch5.addConstraint(Sketcher.Constraint("Horizontal", 0, 3, 3, 3))
sketch5.addConstraint(Sketcher.Constraint("Vertical", 0, 3, 1, 3))
sketch5.addConstraint(Sketcher.Constraint("Vertical", 2, 3, 3, 3))
sketch5.addConstraint(Sketcher.Constraint("Diameter", 0, 2.4))
sketch5.addConstraint(Sketcher.Constraint("DistanceX", -1, 1, 0, 3, 18.0))
sketch5.addConstraint(Sketcher.Constraint("DistanceY", -1, 1, 0, 3, 19.0))
sketch5.addConstraint(Sketcher.Constraint("DistanceY", -1, 1, 1, 3, 11.0))
sketch5.addConstraint(Sketcher.Constraint("DistanceX", -1, 1, 2, 3, 30.0))
doc.recompute()
hole = body.newObject("PartDesign::Hole", "Hole")
hole.Profile = sketch5
hole.ThreadType = "None"
hole.Diameter = 2.4
hole.DepthType = "ThroughAll"
hole.HoleCutType = "Countersink"
hole.HoleCutDiameter = 2.45
hole.HoleCutCountersinkAngle = 90
hole.Reversed = True

# Sketch on XZ plane
sketch6 = body.newObject("Sketcher::SketchObject", "Sketch005")
sketch6.AttachmentSupport = (doc.getObject("XZ_Plane"), [""])
sketch6.MapMode = "FlatFace"
sketch6.AttachmentOffset = App.Placement(App.Vector(0, 0, -20), App.Rotation())
sketch6.addGeometry(Part.Circle(App.Vector(18, 11, 0), App.Vector(0, 0, 1), 2.5), False)
sketch6.addGeometry(Part.Circle(App.Vector(30, 11, 0), App.Vector(0, 0, 1), 2.5), False)
sketch6.addGeometry(Part.Circle(App.Vector(30, 19, 0), App.Vector(0, 0, 1), 2.5), False)
sketch6.addGeometry(Part.Circle(App.Vector(18, 19, 0), App.Vector(0, 0, 1), 2.5), False)
sketch6.addConstraint(Sketcher.Constraint("Equal", 0, 1))
sketch6.addConstraint(Sketcher.Constraint("Equal", 1, 2))
sketch6.addConstraint(Sketcher.Constraint("Equal", 2, 3))
sketch6.addConstraint(Sketcher.Constraint("Horizontal", 0, 3, 1, 3))
sketch6.addConstraint(Sketcher.Constraint("Horizontal", 2, 3, 3, 3))
sketch6.addConstraint(Sketcher.Constraint("Vertical", 1, 3, 2, 3))
sketch6.addConstraint(Sketcher.Constraint("Vertical", 0, 3, 3, 3))
sketch6.addConstraint(Sketcher.Constraint("Diameter", 0, 5.0))
sketch6.addConstraint(Sketcher.Constraint("DistanceX", -1, 1, 0, 3, 18.0))
sketch6.addConstraint(Sketcher.Constraint("DistanceY", -1, 1, 0, 3, 11.0))
sketch6.addConstraint(Sketcher.Constraint("DistanceX", -1, 1, 1, 3, 30.0))
sketch6.addConstraint(Sketcher.Constraint("DistanceY", -1, 1, 2, 3, 19.0))
pocket3 = body.newObject("PartDesign::Pocket", "Pocket002")
pocket3.Profile = sketch6
pocket3.Length = 12
pocket3.Reversed = True

# Sketch on XY plane
sketch7 = body.newObject("Sketcher::SketchObject", "Sketch006")
sketch7.AttachmentSupport = (doc.getObject("XY_Plane"), [""])
sketch7.MapMode = "FlatFace"
sketch7.addGeometry(Part.LineSegment(App.Vector(15, 20, 0), App.Vector(15, 8, 0)), False)
sketch7.addGeometry(Part.LineSegment(App.Vector(15, 8, 0), App.Vector(0, 8, 0)), False)
sketch7.addGeometry(Part.LineSegment(App.Vector(0, 8, 0), App.Vector(0, 20, 0)), False)
sketch7.addGeometry(Part.LineSegment(App.Vector(0, 20, 0), App.Vector(15, 20, 0)), False)
sketch7.addConstraint(Sketcher.Constraint("Coincident", 0, 2, 1, 1))
sketch7.addConstraint(Sketcher.Constraint("Coincident", 1, 2, 2, 1))
sketch7.addConstraint(Sketcher.Constraint("Coincident", 2, 2, 3, 1))
sketch7.addConstraint(Sketcher.Constraint("Coincident", 3, 2, 0, 1))
sketch7.addConstraint(Sketcher.Constraint("Vertical", 0))
sketch7.addConstraint(Sketcher.Constraint("Horizontal", 1))
sketch7.addConstraint(Sketcher.Constraint("Vertical", 2))
sketch7.addConstraint(Sketcher.Constraint("Horizontal", 3))
sketch7.addConstraint(Sketcher.Constraint("PointOnObject", 1, 2, -2))
sketch7.addConstraint(Sketcher.Constraint("DistanceX", 1, 2, 1, 1, 15.0))
sketch7.addConstraint(Sketcher.Constraint("DistanceY", 0, 2, 0, 1, 12.0))
sketch7.addConstraint(Sketcher.Constraint("DistanceY", -1, 1, 0, 2, 8.0))
pocket4 = body.newObject("PartDesign::Pocket", "Pocket003")
pocket4.Profile = sketch7
pocket4.Type = "ThroughAll"
pocket4.Reversed = True

# Sketch on XZ plane
sketch8 = body.newObject("Sketcher::SketchObject", "Sketch007")
sketch8.AttachmentSupport = (doc.getObject("XZ_Plane"), [""])
sketch8.MapMode = "FlatFace"
sketch8.addGeometry(Part.LineSegment(App.Vector(0, 30, 0), App.Vector(0, 26, 0)), False)
sketch8.addGeometry(Part.LineSegment(App.Vector(0, 26, 0), App.Vector(40, 26, 0)), False)
sketch8.addGeometry(Part.LineSegment(App.Vector(40, 26, 0), App.Vector(40, 30, 0)), False)
sketch8.addGeometry(Part.LineSegment(App.Vector(40, 30, 0), App.Vector(0, 30, 0)), False)
sketch8.addGeometry(Part.LineSegment(App.Vector(0, 4, 0), App.Vector(0, 0, 0)), False)
sketch8.addGeometry(Part.LineSegment(App.Vector(0, 0, 0), App.Vector(40, 0, 0)), False)
sketch8.addGeometry(Part.LineSegment(App.Vector(40, 0, 0), App.Vector(40, 4, 0)), False)
sketch8.addGeometry(Part.LineSegment(App.Vector(40, 4, 0), App.Vector(0, 4, 0)), False)
sketch8.addConstraint(Sketcher.Constraint("Coincident", 0, 2, 1, 1))
sketch8.addConstraint(Sketcher.Constraint("Coincident", 1, 2, 2, 1))
sketch8.addConstraint(Sketcher.Constraint("Coincident", 2, 2, 3, 1))
sketch8.addConstraint(Sketcher.Constraint("Coincident", 3, 2, 0, 1))
sketch8.addConstraint(Sketcher.Constraint("Coincident", 4, 2, 5, 1))
sketch8.addConstraint(Sketcher.Constraint("Coincident", 5, 2, 6, 1))
sketch8.addConstraint(Sketcher.Constraint("Coincident", 6, 2, 7, 1))
sketch8.addConstraint(Sketcher.Constraint("Coincident", 7, 2, 4, 1))
sketch8.addConstraint(Sketcher.Constraint("Vertical", 0))
sketch8.addConstraint(Sketcher.Constraint("Horizontal", 1))
sketch8.addConstraint(Sketcher.Constraint("Vertical", 2))
sketch8.addConstraint(Sketcher.Constraint("Horizontal", 3))
sketch8.addConstraint(Sketcher.Constraint("Vertical", 4))
sketch8.addConstraint(Sketcher.Constraint("Horizontal", 5))
sketch8.addConstraint(Sketcher.Constraint("Vertical", 6))
sketch8.addConstraint(Sketcher.Constraint("Horizontal", 7))
sketch8.addConstraint(Sketcher.Constraint("Coincident", 4, 2, -1, 1))
sketch8.addConstraint(Sketcher.Constraint("PointOnObject", 0, 2, -2))
sketch8.addConstraint(Sketcher.Constraint("Vertical", 2, 2, 5, 2))
sketch8.addConstraint(Sketcher.Constraint("Equal", 2, 4))
sketch8.addConstraint(Sketcher.Constraint("DistanceX", 1, 1, 1, 2, 40.0))
sketch8.addConstraint(Sketcher.Constraint("DistanceY", 0, 2, 0, 1, 4.0))
sketch8.addConstraint(Sketcher.Constraint("DistanceY", -1, 1, 0, 2, 26.0))
pocket5 = body.newObject("PartDesign::Pocket", "Pocket004")
pocket5.Profile = sketch8
pocket5.Type = "ThroughAll"
doc.recompute()

fillet = body.newObject("PartDesign::Fillet", "Fillet")
fillet.Base = (pocket5, edges_at(pocket5, [(15, 8, 15)]))
fillet.Radius = 3

doc.recompute()
